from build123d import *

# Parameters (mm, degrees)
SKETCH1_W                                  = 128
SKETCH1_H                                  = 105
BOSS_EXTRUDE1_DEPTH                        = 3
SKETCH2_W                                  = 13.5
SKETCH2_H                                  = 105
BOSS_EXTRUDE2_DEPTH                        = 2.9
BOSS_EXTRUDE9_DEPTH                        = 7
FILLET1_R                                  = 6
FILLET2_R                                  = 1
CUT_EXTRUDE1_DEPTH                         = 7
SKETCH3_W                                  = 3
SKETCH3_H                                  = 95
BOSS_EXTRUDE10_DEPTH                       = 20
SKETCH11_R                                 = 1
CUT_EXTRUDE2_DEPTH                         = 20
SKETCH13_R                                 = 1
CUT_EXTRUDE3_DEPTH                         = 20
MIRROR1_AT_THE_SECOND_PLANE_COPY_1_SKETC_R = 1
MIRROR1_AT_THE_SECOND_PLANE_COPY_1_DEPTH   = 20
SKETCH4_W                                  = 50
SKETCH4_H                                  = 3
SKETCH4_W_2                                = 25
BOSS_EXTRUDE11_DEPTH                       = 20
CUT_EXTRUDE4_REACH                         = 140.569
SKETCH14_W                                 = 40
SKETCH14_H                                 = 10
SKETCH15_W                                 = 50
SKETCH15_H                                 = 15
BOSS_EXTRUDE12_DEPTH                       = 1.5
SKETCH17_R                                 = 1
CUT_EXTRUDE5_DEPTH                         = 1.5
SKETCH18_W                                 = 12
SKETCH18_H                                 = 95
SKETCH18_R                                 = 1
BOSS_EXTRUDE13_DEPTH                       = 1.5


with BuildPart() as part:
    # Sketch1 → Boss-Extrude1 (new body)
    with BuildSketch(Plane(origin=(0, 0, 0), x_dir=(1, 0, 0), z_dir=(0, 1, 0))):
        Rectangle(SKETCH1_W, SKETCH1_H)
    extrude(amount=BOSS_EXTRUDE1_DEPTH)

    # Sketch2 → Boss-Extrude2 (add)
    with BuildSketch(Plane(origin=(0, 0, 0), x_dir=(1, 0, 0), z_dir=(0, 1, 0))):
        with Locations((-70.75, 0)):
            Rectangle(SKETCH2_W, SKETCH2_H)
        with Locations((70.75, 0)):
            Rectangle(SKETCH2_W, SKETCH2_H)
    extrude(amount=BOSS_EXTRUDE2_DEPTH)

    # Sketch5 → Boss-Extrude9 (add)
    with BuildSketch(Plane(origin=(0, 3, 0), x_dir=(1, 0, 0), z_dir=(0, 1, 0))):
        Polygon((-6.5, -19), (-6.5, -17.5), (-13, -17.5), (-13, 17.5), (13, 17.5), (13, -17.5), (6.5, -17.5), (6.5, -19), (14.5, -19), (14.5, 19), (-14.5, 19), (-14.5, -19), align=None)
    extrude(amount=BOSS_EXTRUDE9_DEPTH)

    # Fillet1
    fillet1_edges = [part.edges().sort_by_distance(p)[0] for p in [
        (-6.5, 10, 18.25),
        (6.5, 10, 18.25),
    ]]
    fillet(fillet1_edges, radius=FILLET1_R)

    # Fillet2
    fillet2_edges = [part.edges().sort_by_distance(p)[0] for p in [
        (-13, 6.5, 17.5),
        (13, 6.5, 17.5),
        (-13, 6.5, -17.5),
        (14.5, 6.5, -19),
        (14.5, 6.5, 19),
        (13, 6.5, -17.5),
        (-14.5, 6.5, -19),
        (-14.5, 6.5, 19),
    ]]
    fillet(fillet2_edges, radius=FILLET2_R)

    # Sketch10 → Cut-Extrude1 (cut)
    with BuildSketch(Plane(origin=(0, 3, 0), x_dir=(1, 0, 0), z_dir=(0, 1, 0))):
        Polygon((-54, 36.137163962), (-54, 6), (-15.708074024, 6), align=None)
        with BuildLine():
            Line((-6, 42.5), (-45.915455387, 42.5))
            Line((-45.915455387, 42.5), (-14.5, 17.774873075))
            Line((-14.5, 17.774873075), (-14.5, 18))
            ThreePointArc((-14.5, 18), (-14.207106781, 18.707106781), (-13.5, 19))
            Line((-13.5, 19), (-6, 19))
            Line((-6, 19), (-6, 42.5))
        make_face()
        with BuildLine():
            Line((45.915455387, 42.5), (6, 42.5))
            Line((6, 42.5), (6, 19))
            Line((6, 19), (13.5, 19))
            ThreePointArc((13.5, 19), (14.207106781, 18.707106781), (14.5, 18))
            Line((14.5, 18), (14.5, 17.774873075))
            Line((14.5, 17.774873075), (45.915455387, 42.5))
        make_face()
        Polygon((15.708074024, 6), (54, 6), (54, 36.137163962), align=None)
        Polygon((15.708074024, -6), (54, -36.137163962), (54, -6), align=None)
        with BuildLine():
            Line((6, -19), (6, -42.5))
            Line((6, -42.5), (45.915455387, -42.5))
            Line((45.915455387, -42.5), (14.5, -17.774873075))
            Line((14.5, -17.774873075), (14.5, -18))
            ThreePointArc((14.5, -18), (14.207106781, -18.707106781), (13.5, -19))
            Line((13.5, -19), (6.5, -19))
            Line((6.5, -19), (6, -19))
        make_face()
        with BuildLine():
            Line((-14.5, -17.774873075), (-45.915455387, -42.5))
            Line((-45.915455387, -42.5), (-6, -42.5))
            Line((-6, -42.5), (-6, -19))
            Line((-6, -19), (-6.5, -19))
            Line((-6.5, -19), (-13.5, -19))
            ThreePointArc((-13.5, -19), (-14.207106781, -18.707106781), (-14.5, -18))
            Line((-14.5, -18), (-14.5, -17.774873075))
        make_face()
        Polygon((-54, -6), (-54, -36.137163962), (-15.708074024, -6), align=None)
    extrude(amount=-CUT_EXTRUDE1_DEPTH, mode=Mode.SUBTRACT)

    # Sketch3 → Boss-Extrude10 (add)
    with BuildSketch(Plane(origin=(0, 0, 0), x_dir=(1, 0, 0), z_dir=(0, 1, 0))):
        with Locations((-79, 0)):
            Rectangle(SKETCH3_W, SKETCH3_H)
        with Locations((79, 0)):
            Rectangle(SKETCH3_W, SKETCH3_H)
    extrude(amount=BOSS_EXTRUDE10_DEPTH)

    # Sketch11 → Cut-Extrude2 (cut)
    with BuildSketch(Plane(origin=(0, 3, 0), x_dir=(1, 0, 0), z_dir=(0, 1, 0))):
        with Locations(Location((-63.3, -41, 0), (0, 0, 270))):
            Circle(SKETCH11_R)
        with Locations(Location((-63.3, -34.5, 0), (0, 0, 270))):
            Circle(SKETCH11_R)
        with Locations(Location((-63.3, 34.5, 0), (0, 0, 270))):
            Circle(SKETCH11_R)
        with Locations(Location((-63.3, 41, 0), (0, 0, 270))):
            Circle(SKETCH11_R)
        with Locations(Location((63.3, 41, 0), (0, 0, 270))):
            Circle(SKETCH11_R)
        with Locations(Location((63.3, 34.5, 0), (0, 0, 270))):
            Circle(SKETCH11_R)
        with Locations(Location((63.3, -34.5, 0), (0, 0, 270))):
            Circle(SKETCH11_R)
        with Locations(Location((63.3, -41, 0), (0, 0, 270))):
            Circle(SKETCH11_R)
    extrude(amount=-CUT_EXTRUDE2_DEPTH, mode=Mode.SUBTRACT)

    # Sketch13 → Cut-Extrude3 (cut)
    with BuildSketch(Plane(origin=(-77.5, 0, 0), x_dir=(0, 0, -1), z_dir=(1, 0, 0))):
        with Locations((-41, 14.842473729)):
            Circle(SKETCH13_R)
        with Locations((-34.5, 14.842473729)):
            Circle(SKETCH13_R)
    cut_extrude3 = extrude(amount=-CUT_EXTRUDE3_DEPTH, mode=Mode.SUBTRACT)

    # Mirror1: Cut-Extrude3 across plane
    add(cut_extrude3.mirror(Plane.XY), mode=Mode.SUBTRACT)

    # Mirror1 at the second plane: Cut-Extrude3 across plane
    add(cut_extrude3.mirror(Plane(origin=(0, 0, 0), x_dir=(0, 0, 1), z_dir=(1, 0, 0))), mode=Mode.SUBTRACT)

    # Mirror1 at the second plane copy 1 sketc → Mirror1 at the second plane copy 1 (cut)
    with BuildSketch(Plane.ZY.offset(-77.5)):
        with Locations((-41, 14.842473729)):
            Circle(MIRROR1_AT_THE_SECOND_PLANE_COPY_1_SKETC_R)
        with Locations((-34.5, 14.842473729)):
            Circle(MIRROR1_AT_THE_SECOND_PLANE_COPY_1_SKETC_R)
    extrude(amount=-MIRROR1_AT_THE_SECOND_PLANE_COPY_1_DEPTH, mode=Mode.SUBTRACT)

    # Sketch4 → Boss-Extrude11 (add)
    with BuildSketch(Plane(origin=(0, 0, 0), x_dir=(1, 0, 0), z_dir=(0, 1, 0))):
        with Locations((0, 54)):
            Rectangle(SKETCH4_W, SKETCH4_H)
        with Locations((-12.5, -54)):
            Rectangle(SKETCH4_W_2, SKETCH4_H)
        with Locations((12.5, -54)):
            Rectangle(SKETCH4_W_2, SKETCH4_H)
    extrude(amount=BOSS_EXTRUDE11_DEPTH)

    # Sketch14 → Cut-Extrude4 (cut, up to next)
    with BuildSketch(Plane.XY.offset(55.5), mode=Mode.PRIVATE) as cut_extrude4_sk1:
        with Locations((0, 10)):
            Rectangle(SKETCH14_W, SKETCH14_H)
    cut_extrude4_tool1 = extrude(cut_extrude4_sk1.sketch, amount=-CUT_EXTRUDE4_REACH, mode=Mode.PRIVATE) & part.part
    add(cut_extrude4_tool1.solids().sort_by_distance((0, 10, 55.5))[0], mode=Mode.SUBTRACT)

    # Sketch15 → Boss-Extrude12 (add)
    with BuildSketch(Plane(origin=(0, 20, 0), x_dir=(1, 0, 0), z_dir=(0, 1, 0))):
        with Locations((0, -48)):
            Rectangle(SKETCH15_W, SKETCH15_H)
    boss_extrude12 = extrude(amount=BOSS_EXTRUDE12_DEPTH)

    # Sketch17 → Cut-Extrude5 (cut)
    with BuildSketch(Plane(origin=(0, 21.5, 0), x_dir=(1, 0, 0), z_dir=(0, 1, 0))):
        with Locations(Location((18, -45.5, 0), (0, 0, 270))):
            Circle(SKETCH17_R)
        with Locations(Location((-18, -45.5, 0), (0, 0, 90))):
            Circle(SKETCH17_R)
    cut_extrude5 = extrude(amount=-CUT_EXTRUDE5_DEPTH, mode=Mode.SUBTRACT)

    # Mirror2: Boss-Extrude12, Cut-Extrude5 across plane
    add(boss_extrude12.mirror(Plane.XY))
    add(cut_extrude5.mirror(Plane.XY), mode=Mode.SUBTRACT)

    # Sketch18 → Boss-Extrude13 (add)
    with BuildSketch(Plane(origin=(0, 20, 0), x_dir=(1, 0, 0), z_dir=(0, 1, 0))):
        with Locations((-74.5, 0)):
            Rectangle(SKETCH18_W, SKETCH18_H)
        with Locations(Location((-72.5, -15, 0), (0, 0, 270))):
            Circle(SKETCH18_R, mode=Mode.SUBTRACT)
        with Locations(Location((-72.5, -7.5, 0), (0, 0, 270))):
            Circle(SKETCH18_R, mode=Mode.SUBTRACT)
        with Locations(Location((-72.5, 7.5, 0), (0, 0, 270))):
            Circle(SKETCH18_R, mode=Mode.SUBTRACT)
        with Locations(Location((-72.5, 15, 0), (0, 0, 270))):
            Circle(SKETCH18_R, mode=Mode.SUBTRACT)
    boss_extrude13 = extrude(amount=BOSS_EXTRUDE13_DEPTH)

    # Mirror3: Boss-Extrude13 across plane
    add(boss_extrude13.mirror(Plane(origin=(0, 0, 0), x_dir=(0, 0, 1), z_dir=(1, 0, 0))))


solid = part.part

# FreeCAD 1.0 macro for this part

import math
import FreeCAD as App
import Part
import Sketcher
Q = App.Units.Quantity


def edges_at(feature, points):
    """Names of the edges that pass closest to the given points."""
    edges = feature.Shape.Edges
    near = lambda p: min(range(len(edges)), key=lambda i: edges[i].distToShape(Part.Vertex(*p))[0])
    return sorted({f"Edge{near(p) + 1}" for p in points})


def add_polygon(sketch, points):
    """Adds a closed chain of lines whose ends are joined by coincident constraints."""
    first, n = sketch.GeometryCount, len(points)
    for a, b in zip(points, points[1:] + points[:1]):
        sketch.addGeometry(Part.LineSegment(App.Vector(*a, 0), App.Vector(*b, 0)), False)
    for i in range(n):
        sketch.addConstraint(Sketcher.Constraint("Coincident", first + i, 2, first + (i + 1) % n, 1))

doc = App.newDocument("Part")
body = doc.addObject("PartDesign::Body", "Body")

# Sketch on XZ plane
sketch1 = body.newObject("Sketcher::SketchObject", "Sketch")
sketch1.AttachmentSupport = (doc.getObject("XZ_Plane"), [""])
sketch1.MapMode = "FlatFace"
add_polygon(sketch1, [(-64, -52), (-64, 52), (64, 52), (64, -52)])  # lines 0-3
sketch1.addConstraint([
    Sketcher.Constraint("Vertical", 0),
    Sketcher.Constraint("Horizontal", 1),
    Sketcher.Constraint("Vertical", 2),
    Sketcher.Constraint("Horizontal", 3),
    Sketcher.Constraint("Symmetric", 0, 2, 2, 2, -1, 1),
    Sketcher.Constraint("DistanceX", 1, 1, 1, 2, Q("128 mm")),
    Sketcher.Constraint("DistanceY", 0, 1, 0, 2, Q("105 mm")),
])
pad1 = body.newObject("PartDesign::Pad", "Pad")
pad1.Profile = sketch1
pad1.Length = 3
pad1.Reversed = True

# Sketch on XZ plane
sketch2 = body.newObject("Sketcher::SketchObject", "Sketch001")
sketch2.AttachmentSupport = (doc.getObject("XZ_Plane"), [""])
sketch2.MapMode = "FlatFace"
add_polygon(sketch2, [(-78, -52), (-78, 52), (-64, 52), (-64, -52)])  # lines 0-3
add_polygon(sketch2, [(64, -52), (64, 52), (78, 52), (78, -52)])  # lines 4-7
sketch2.addConstraint([
    Sketcher.Constraint("Vertical", 0),
    Sketcher.Constraint("Horizontal", 1),
    Sketcher.Constraint("Vertical", 2),
    Sketcher.Constraint("Horizontal", 3),
    Sketcher.Constraint("Vertical", 4),
    Sketcher.Constraint("Horizontal", 5),
    Sketcher.Constraint("Vertical", 6),
    Sketcher.Constraint("Horizontal", 7),
    Sketcher.Constraint("Symmetric", 2, 2, 4, 2, -1, 1),
    Sketcher.Constraint("Symmetric", 0, 2, 6, 2, -1, 1),
    Sketcher.Constraint("Horizontal", 1, 2, 4, 2),
    Sketcher.Constraint("DistanceY", 0, 1, 0, 2, Q("105 mm")),
    Sketcher.Constraint("DistanceX", 1, 1, 1, 2, Q("13.5 mm")),
    Sketcher.Constraint("DistanceX", 1, 2, -1, 1, Q("64 mm")),
])
pad2 = body.newObject("PartDesign::Pad", "Pad001")
pad2.Profile = sketch2
pad2.Length = 2.9
pad2.Reversed = True

# Sketch on XZ plane
sketch3 = body.newObject("Sketcher::SketchObject", "Sketch002")
sketch3.AttachmentSupport = (doc.getObject("XZ_Plane"), [""])
sketch3.MapMode = "FlatFace"
sketch3.AttachmentOffset = App.Placement(App.Vector(0, 0, -3), App.Rotation())
add_polygon(sketch3, [(-6.5, 19), (-6.5, 17.5), (-13, 17.5), (-13, -17.5), (13, -17.5), (13, 17.5), (6.5, 17.5), (6.5, 19), (14.5, 19), (14.5, -19), (-14.5, -19), (-14.5, 19)])  # lines 0-11
sketch3.addConstraint([
    Sketcher.Constraint("Vertical", 0),
    Sketcher.Constraint("Horizontal", 1),
    Sketcher.Constraint("Vertical", 2),
    Sketcher.Constraint("Horizontal", 3),
    Sketcher.Constraint("Vertical", 4),
    Sketcher.Constraint("Horizontal", 5),
    Sketcher.Constraint("Vertical", 6),
    Sketcher.Constraint("Horizontal", 7),
    Sketcher.Constraint("Vertical", 8),
    Sketcher.Constraint("Horizontal", 9),
    Sketcher.Constraint("Vertical", 10),
    Sketcher.Constraint("Horizontal", 11),
    Sketcher.Constraint("Symmetric", 1, 2, 3, 2, -1, 1),
    Sketcher.Constraint("Symmetric", 7, 2, 9, 2, -1, 1),
    Sketcher.Constraint("Symmetric", 0, 2, 5, 2, -2),
    Sketcher.Constraint("Horizontal", 7, 2, 10, 2),
    Sketcher.Constraint("DistanceX", 3, 1, 3, 2, Q("26 mm")),
    Sketcher.Constraint("DistanceX", 7, 1, 7, 2, Q("8 mm")),
    Sketcher.Constraint("DistanceX", 9, 2, 9, 1, Q("29 mm")),
    Sketcher.Constraint("DistanceY", 2, 2, 2, 1, Q("35 mm")),
    Sketcher.Constraint("DistanceY", 8, 2, 8, 1, Q("38 mm")),
])
pad3 = body.newObject("PartDesign::Pad", "Pad002")
pad3.Profile = sketch3
pad3.Length = 7
pad3.Reversed = True
doc.recompute()

fillet = body.newObject("PartDesign::Fillet", "Fillet")
fillet.Base = (pad3, edges_at(pad3, [(-6.5, 10, 18.25), (6.5, 10, 18.25)]))
fillet.Radius = 6
doc.recompute()

fillet2 = body.newObject("PartDesign::Fillet", "Fillet001")
fillet2.Base = (fillet, edges_at(fillet, [
    (-13, 6.5, 17.5),
    (13, 6.5, 17.5),
    (-13, 6.5, -17.5),
    (14.5, 6.5, -19),
    (14.5, 6.5, 19),
    (13, 6.5, -17.5),
    (-14.5, 6.5, -19),
    (-14.5, 6.5, 19),
]))
fillet2.Radius = 1

# Sketch on XZ plane
sketch4 = body.newObject("Sketcher::SketchObject", "Sketch003")
sketch4.AttachmentSupport = (doc.getObject("XZ_Plane"), [""])
sketch4.MapMode = "FlatFace"
sketch4.AttachmentOffset = App.Placement(App.Vector(0, 0, -3), App.Rotation())
add_polygon(sketch4, [(-54, -36.14), (-54, -6), (-15.71, -6)])  # lines 0-2
sketch4.addGeometry(Part.LineSegment(App.Vector(-6, -42.5, 0), App.Vector(-45.92, -42.5, 0)), False)  # 3
sketch4.addGeometry(Part.LineSegment(App.Vector(-45.92, -42.5, 0), App.Vector(-14.5, -17.77, 0)), False)  # 4
sketch4.addGeometry(Part.LineSegment(App.Vector(-14.5, -17.77, 0), App.Vector(-14.5, -18, 0)), False)  # 5
sketch4.addGeometry(Part.ArcOfCircle(Part.Circle(App.Vector(-13.5, -18, 0), App.Vector(0, 0, 1), 1), math.radians(-180), math.radians(-90)), False)  # 6
sketch4.addGeometry(Part.LineSegment(App.Vector(-13.5, -19, 0), App.Vector(-6, -19, 0)), False)  # 7
sketch4.addGeometry(Part.LineSegment(App.Vector(-6, -19, 0), App.Vector(-6, -42.5, 0)), False)  # 8
sketch4.addGeometry(Part.LineSegment(App.Vector(45.92, -42.5, 0), App.Vector(6, -42.5, 0)), False)  # 9
sketch4.addGeometry(Part.LineSegment(App.Vector(6, -42.5, 0), App.Vector(6, -19, 0)), False)  # 10
sketch4.addGeometry(Part.LineSegment(App.Vector(6, -19, 0), App.Vector(13.5, -19, 0)), False)  # 11
sketch4.addGeometry(Part.ArcOfCircle(Part.Circle(App.Vector(13.5, -18, 0), App.Vector(0, 0, 1), 1), math.radians(-90), math.radians(0)), False)  # 12
sketch4.addGeometry(Part.LineSegment(App.Vector(14.5, -18, 0), App.Vector(14.5, -17.77, 0)), False)  # 13
sketch4.addGeometry(Part.LineSegment(App.Vector(14.5, -17.77, 0), App.Vector(45.92, -42.5, 0)), False)  # 14
add_polygon(sketch4, [(15.71, -6), (54, -6), (54, -36.14)])  # lines 15-17
add_polygon(sketch4, [(15.71, 6), (54, 36.14), (54, 6)])  # lines 18-20
sketch4.addGeometry(Part.LineSegment(App.Vector(6, 19, 0), App.Vector(6, 42.5, 0)), False)  # 21
sketch4.addGeometry(Part.LineSegment(App.Vector(6, 42.5, 0), App.Vector(45.92, 42.5, 0)), False)  # 22
sketch4.addGeometry(Part.LineSegment(App.Vector(45.92, 42.5, 0), App.Vector(14.5, 17.77, 0)), False)  # 23
sketch4.addGeometry(Part.LineSegment(App.Vector(14.5, 17.77, 0), App.Vector(14.5, 18, 0)), False)  # 24
sketch4.addGeometry(Part.ArcOfCircle(Part.Circle(App.Vector(13.5, 18, 0), App.Vector(0, 0, 1), 1), math.radians(0), math.radians(90)), False)  # 25
sketch4.addGeometry(Part.LineSegment(App.Vector(13.5, 19, 0), App.Vector(6, 19, 0)), False)  # 26
sketch4.addGeometry(Part.LineSegment(App.Vector(-14.5, 17.77, 0), App.Vector(-45.92, 42.5, 0)), False)  # 27
sketch4.addGeometry(Part.LineSegment(App.Vector(-45.92, 42.5, 0), App.Vector(-6, 42.5, 0)), False)  # 28
sketch4.addGeometry(Part.LineSegment(App.Vector(-6, 42.5, 0), App.Vector(-6, 19, 0)), False)  # 29
sketch4.addGeometry(Part.LineSegment(App.Vector(-6, 19, 0), App.Vector(-13.5, 19, 0)), False)  # 30
sketch4.addGeometry(Part.ArcOfCircle(Part.Circle(App.Vector(-13.5, 18, 0), App.Vector(0, 0, 1), 1), math.radians(90), math.radians(180)), False)  # 31
sketch4.addGeometry(Part.LineSegment(App.Vector(-14.5, 18, 0), App.Vector(-14.5, 17.77, 0)), False)  # 32
add_polygon(sketch4, [(-54, 6), (-54, 36.14), (-15.71, 6)])  # lines 33-35
sketch4.addConstraint([
    Sketcher.Constraint("Coincident", 3, 2, 4, 1),
    Sketcher.Constraint("Coincident", 4, 2, 5, 1),
    Sketcher.Constraint("Tangent", 5, 2, 6, 1),
    Sketcher.Constraint("Tangent", 6, 2, 7, 1),
    Sketcher.Constraint("Coincident", 7, 2, 8, 1),
    Sketcher.Constraint("Coincident", 8, 2, 3, 1),
    Sketcher.Constraint("Coincident", 9, 2, 10, 1),
    Sketcher.Constraint("Coincident", 10, 2, 11, 1),
    Sketcher.Constraint("Tangent", 11, 2, 12, 1),
    Sketcher.Constraint("Tangent", 12, 2, 13, 1),
    Sketcher.Constraint("Coincident", 13, 2, 14, 1),
    Sketcher.Constraint("Coincident", 14, 2, 9, 1),
    Sketcher.Constraint("Coincident", 21, 2, 22, 1),
    Sketcher.Constraint("Coincident", 22, 2, 23, 1),
    Sketcher.Constraint("Coincident", 23, 2, 24, 1),
    Sketcher.Constraint("Tangent", 24, 2, 25, 1),
    Sketcher.Constraint("Tangent", 25, 2, 26, 1),
    Sketcher.Constraint("Coincident", 26, 2, 21, 1),
    Sketcher.Constraint("Coincident", 27, 2, 28, 1),
    Sketcher.Constraint("Coincident", 28, 2, 29, 1),
    Sketcher.Constraint("Coincident", 29, 2, 30, 1),
    Sketcher.Constraint("Tangent", 30, 2, 31, 1),
    Sketcher.Constraint("Tangent", 31, 2, 32, 1),
    Sketcher.Constraint("Coincident", 32, 2, 27, 1),
    Sketcher.Constraint("Vertical", 0),
    Sketcher.Constraint("Horizontal", 1),
    Sketcher.Constraint("Horizontal", 3),
    Sketcher.Constraint("Vertical", 5),
    Sketcher.Constraint("Horizontal", 7),
    Sketcher.Constraint("Vertical", 8),
    Sketcher.Constraint("Horizontal", 9),
    Sketcher.Constraint("Vertical", 10),
    Sketcher.Constraint("Horizontal", 11),
    Sketcher.Constraint("Vertical", 13),
    Sketcher.Constraint("Horizontal", 15),
    Sketcher.Constraint("Vertical", 16),
    Sketcher.Constraint("Vertical", 19),
    Sketcher.Constraint("Horizontal", 20),
    Sketcher.Constraint("Vertical", 21),
    Sketcher.Constraint("Horizontal", 22),
    Sketcher.Constraint("Vertical", 24),
    Sketcher.Constraint("Horizontal", 26),
    Sketcher.Constraint("Horizontal", 28),
    Sketcher.Constraint("Vertical", 29),
    Sketcher.Constraint("Horizontal", 30),
    Sketcher.Constraint("Vertical", 32),
    Sketcher.Constraint("Vertical", 33),
    Sketcher.Constraint("Horizontal", 35),
    Sketcher.Constraint("Equal", 6, 12),
    Sketcher.Constraint("Equal", 12, 25),
    Sketcher.Constraint("Equal", 25, 31),
    Sketcher.Constraint("Symmetric", 6, 3, 25, 3, -1, 1),
    Sketcher.Constraint("Symmetric", 12, 3, 31, 3, -1, 1),
    Sketcher.Constraint("Symmetric", 2, 2, 18, 2, -1, 1),
    Sketcher.Constraint("Symmetric", 1, 2, 20, 2, -1, 1),
    Sketcher.Constraint("Symmetric", 8, 2, 21, 2, -1, 1),
    Sketcher.Constraint("Symmetric", 14, 2, 27, 2, -1, 1),
    Sketcher.Constraint("Symmetric", 16, 2, 33, 2, -1, 1),
    Sketcher.Constraint("Symmetric", 17, 2, 34, 2, -1, 1),
    Sketcher.Constraint("Symmetric", 6, 3, 12, 3, -2),
    Sketcher.Constraint("Symmetric", 8, 2, 9, 2, -2),
    Sketcher.Constraint("Symmetric", 0, 2, 15, 2, -2),
    Sketcher.Constraint("Parallel", 2, 4),
    Sketcher.Constraint("Parallel", 14, 17),
    Sketcher.Constraint("Parallel", 18, 23),
    Sketcher.Constraint("Parallel", 17, 27),
    Sketcher.Constraint("Horizontal", 4, 2, 13, 2),
    Sketcher.Constraint("Horizontal", 2, 2, 16, 2),
    Sketcher.Constraint("Horizontal", 23, 2, 32, 2),
    Sketcher.Constraint("Vertical", 17, 2, 20, 2),
    Sketcher.Constraint("Vertical", 8, 2, 28, 2),
    Sketcher.Constraint("Radius", 6, Q("1 mm")),
    Sketcher.Constraint("DistanceX", 7, 1, 7, 2, Q("7.5 mm")),
    Sketcher.Constraint("DistanceY", 8, 2, 8, 1, Q("23.5 mm")),
    Sketcher.Constraint("DistanceY", 6, 3, -1, 1, Q("18 mm")),
    Sketcher.Constraint("DistanceX", 0, 2, -1, 1, Q("54 mm")),
    Sketcher.Constraint("DistanceY", 0, 2, -1, 1, Q("6 mm")),
    Sketcher.Constraint("DistanceX", 7, 2, -1, 1, Q("6 mm")),
    Sketcher.Constraint("Distance", 2, Q("48.729049 mm")),
    Sketcher.Constraint("Distance", 4, Q("39.978278 mm")),
    Sketcher.Constraint("DistanceX", 1, 1, 1, 2, Q("38.291926 mm")),
])
pocket1 = body.newObject("PartDesign::Pocket", "Pocket")
pocket1.Profile = sketch4
pocket1.Length = 7
pocket1.Reversed = True

# Sketch on XZ plane
sketch5 = body.newObject("Sketcher::SketchObject", "Sketch004")
sketch5.AttachmentSupport = (doc.getObject("XZ_Plane"), [""])
sketch5.MapMode = "FlatFace"
add_polygon(sketch5, [(-80.5, -47.5), (-80.5, 47.5), (-77.5, 47.5), (-77.5, -47.5)])  # lines 0-3
add_polygon(sketch5, [(77.5, -47.5), (77.5, 47.5), (80.5, 47.5), (80.5, -47.5)])  # lines 4-7
sketch5.addConstraint([
    Sketcher.Constraint("Vertical", 0),
    Sketcher.Constraint("Horizontal", 1),
    Sketcher.Constraint("Vertical", 2),
    Sketcher.Constraint("Horizontal", 3),
    Sketcher.Constraint("Vertical", 4),
    Sketcher.Constraint("Horizontal", 5),
    Sketcher.Constraint("Vertical", 6),
    Sketcher.Constraint("Horizontal", 7),
    Sketcher.Constraint("Symmetric", 2, 2, 4, 2, -1, 1),
    Sketcher.Constraint("Symmetric", 0, 2, 6, 2, -1, 1),
    Sketcher.Constraint("Horizontal", 1, 2, 4, 2),
    Sketcher.Constraint("DistanceX", 1, 1, 1, 2, Q("3 mm")),
    Sketcher.Constraint("DistanceY", 0, 1, 0, 2, Q("95 mm")),
    Sketcher.Constraint("DistanceX", 1, 2, 4, 2, Q("155 mm")),
])
pad4 = body.newObject("PartDesign::Pad", "Pad003")
pad4.Profile = sketch5
pad4.Length = 20
pad4.Reversed = True

# Sketch on XZ plane
sketch6 = body.newObject("Sketcher::SketchObject", "Sketch005")
sketch6.AttachmentSupport = (doc.getObject("XZ_Plane"), [""])
sketch6.MapMode = "FlatFace"
sketch6.AttachmentOffset = App.Placement(App.Vector(0, 0, -3), App.Rotation())
sketch6.addGeometry([
    Part.Circle(App.Vector(-63.3, 41, 0), App.Vector(0, 0, 1), 1),  # 0
    Part.Circle(App.Vector(-63.3, 34.5, 0), App.Vector(0, 0, 1), 1),  # 1
    Part.Circle(App.Vector(-63.3, -34.5, 0), App.Vector(0, 0, 1), 1),  # 2
    Part.Circle(App.Vector(-63.3, -41, 0), App.Vector(0, 0, 1), 1),  # 3
    Part.Circle(App.Vector(63.3, -41, 0), App.Vector(0, 0, 1), 1),  # 4
    Part.Circle(App.Vector(63.3, -34.5, 0), App.Vector(0, 0, 1), 1),  # 5
    Part.Circle(App.Vector(63.3, 34.5, 0), App.Vector(0, 0, 1), 1),  # 6
    Part.Circle(App.Vector(63.3, 41, 0), App.Vector(0, 0, 1), 1),  # 7
], False)
sketch6.addConstraint([
    Sketcher.Constraint("Equal", 0, 1),
    Sketcher.Constraint("Equal", 1, 2),
    Sketcher.Constraint("Equal", 2, 3),
    Sketcher.Constraint("Equal", 3, 4),
    Sketcher.Constraint("Equal", 4, 5),
    Sketcher.Constraint("Equal", 5, 6),
    Sketcher.Constraint("Equal", 6, 7),
    Sketcher.Constraint("Symmetric", 0, 3, 4, 3, -1, 1),
    Sketcher.Constraint("Symmetric", 1, 3, 5, 3, -1, 1),
    Sketcher.Constraint("Symmetric", 2, 3, 6, 3, -1, 1),
    Sketcher.Constraint("Symmetric", 3, 3, 7, 3, -1, 1),
    Sketcher.Constraint("Symmetric", 3, 3, 4, 3, -2),
    Sketcher.Constraint("Symmetric", 2, 3, 5, 3, -2),
    Sketcher.Constraint("Vertical", 0, 3, 1, 3),
    Sketcher.Constraint("Diameter", 0, Q("2 mm")),
    Sketcher.Constraint("DistanceY", -1, 1, 0, 3, Q("41 mm")),
    Sketcher.Constraint("DistanceY", 2, 3, 1, 3, Q("69 mm")),
    Sketcher.Constraint("DistanceX", 0, 3, -1, 1, Q("63.3 mm")),
])
pocket2 = body.newObject("PartDesign::Pocket", "Pocket001")
pocket2.Profile = sketch6
pocket2.Length = 20
pocket2.Reversed = True

# Sketch on YZ plane
sketch7 = body.newObject("Sketcher::SketchObject", "Sketch006")
sketch7.AttachmentSupport = (doc.getObject("YZ_Plane"), [""])
sketch7.MapMode = "FlatFace"
sketch7.AttachmentOffset = App.Placement(App.Vector(0, 0, -77.5), App.Rotation())
sketch7.addGeometry([
    Part.Circle(App.Vector(14.8, 41, 0), App.Vector(0, 0, 1), 1),
    Part.Circle(App.Vector(14.8, 34.5, 0), App.Vector(0, 0, 1), 1),
], False)
sketch7.addConstraint([
    Sketcher.Constraint("Equal", 0, 1),
    Sketcher.Constraint("Vertical", 0, 3, 1, 3),
    Sketcher.Constraint("Diameter", 0, Q("2 mm")),
    Sketcher.Constraint("DistanceY", -1, 1, 0, 3, Q("41 mm")),
    Sketcher.Constraint("DistanceY", -1, 1, 1, 3, Q("34.5 mm")),
    Sketcher.Constraint("DistanceX", -1, 1, 0, 3, Q("14.842474 mm")),
])
pocket3 = body.newObject("PartDesign::Pocket", "Pocket002")
pocket3.Profile = sketch7
pocket3.Length = 20
doc.recompute()

mirrored = body.newObject("PartDesign::Mirrored", "Mirrored")
mirrored.Originals = [pocket3]
mirrored.MirrorPlane = (doc.getObject("XY_Plane"), [""])
body.Tip = mirrored
doc.recompute()

mirrored2 = body.newObject("PartDesign::Mirrored", "Mirrored001")
mirrored2.Originals = [pocket3]
mirrored2.MirrorPlane = (doc.getObject("YZ_Plane"), [""])
body.Tip = mirrored2

# Sketch on YZ plane
sketch8 = body.newObject("Sketcher::SketchObject", "Sketch007")
sketch8.AttachmentSupport = (doc.getObject("YZ_Plane"), [""])
sketch8.MapMode = "FlatFace"
sketch8.AttachmentOffset = App.Placement(App.Vector(0, 0, 77.5), App.Rotation())
sketch8.addGeometry([
    Part.Circle(App.Vector(14.8, -41, 0), App.Vector(0, 0, 1), 1),
    Part.Circle(App.Vector(14.8, -34.5, 0), App.Vector(0, 0, 1), 1),
], False)
sketch8.addConstraint([
    Sketcher.Constraint("Equal", 0, 1),
    Sketcher.Constraint("Vertical", 0, 3, 1, 3),
    Sketcher.Constraint("Diameter", 0, Q("2 mm")),
    Sketcher.Constraint("DistanceY", 0, 3, -1, 1, Q("41 mm")),
    Sketcher.Constraint("DistanceY", 1, 3, -1, 1, Q("34.5 mm")),
    Sketcher.Constraint("DistanceX", -1, 1, 0, 3, Q("14.842474 mm")),
])
pocket4 = body.newObject("PartDesign::Pocket", "Pocket003")
pocket4.Profile = sketch8
pocket4.Length = 20
pocket4.Reversed = True

# Sketch on XZ plane
sketch9 = body.newObject("Sketcher::SketchObject", "Sketch008")
sketch9.AttachmentSupport = (doc.getObject("XZ_Plane"), [""])
sketch9.MapMode = "FlatFace"
add_polygon(sketch9, [(-25, -55.5), (-25, -52.5), (25, -52.5), (25, -55.5)])  # lines 0-3
add_polygon(sketch9, [(-25, 52.5), (-25, 55.5), (25, 55.5), (25, 52.5)])  # lines 4-7
sketch9.addConstraint([
    Sketcher.Constraint("Vertical", 0),
    Sketcher.Constraint("Horizontal", 1),
    Sketcher.Constraint("Vertical", 2),
    Sketcher.Constraint("Horizontal", 3),
    Sketcher.Constraint("Vertical", 4),
    Sketcher.Constraint("Horizontal", 5),
    Sketcher.Constraint("Vertical", 6),
    Sketcher.Constraint("Horizontal", 7),
    Sketcher.Constraint("Symmetric", 2, 2, 4, 2, -1, 1),
    Sketcher.Constraint("Symmetric", 0, 2, 6, 2, -1, 1),
    Sketcher.Constraint("Vertical", 3, 2, 4, 2),
    Sketcher.Constraint("DistanceX", 1, 1, 1, 2, Q("50 mm")),
    Sketcher.Constraint("DistanceY", 0, 1, 0, 2, Q("3 mm")),
    Sketcher.Constraint("DistanceY", 0, 2, 4, 2, Q("108 mm")),
])
pad5 = body.newObject("PartDesign::Pad", "Pad004")
pad5.Profile = sketch9
pad5.Length = 20
pad5.Reversed = True

# Sketch on XY plane
sketch10 = body.newObject("Sketcher::SketchObject", "Sketch009")
sketch10.AttachmentSupport = (doc.getObject("XY_Plane"), [""])
sketch10.MapMode = "FlatFace"
sketch10.AttachmentOffset = App.Placement(App.Vector(0, 0, 55.5), App.Rotation())
add_polygon(sketch10, [(-20, 15), (-20, 5), (20, 5), (20, 15)])  # lines 0-3
sketch10.addConstraint([
    Sketcher.Constraint("Vertical", 0),
    Sketcher.Constraint("Horizontal", 1),
    Sketcher.Constraint("Vertical", 2),
    Sketcher.Constraint("Horizontal", 3),
    Sketcher.Constraint("DistanceX", 1, 1, 1, 2, Q("40 mm")),
    Sketcher.Constraint("DistanceY", 0, 2, 0, 1, Q("10 mm")),
    Sketcher.Constraint("DistanceX", 0, 2, -1, 1, Q("20 mm")),
    Sketcher.Constraint("DistanceY", -1, 1, 0, 2, Q("5 mm")),
])
pocket5 = body.newObject("PartDesign::Pocket", "Pocket004")
pocket5.Profile = sketch10
pocket5.Type = "UpToFirst"

# Sketch on XZ plane
sketch11 = body.newObject("Sketcher::SketchObject", "Sketch010")
sketch11.AttachmentSupport = (doc.getObject("XZ_Plane"), [""])
sketch11.MapMode = "FlatFace"
sketch11.AttachmentOffset = App.Placement(App.Vector(0, 0, -20), App.Rotation())
add_polygon(sketch11, [(-25, 40), (-25, 56), (25, 56), (25, 40)])  # lines 0-3
sketch11.addConstraint([
    Sketcher.Constraint("Vertical", 0),
    Sketcher.Constraint("Horizontal", 1),
    Sketcher.Constraint("Vertical", 2),
    Sketcher.Constraint("Horizontal", 3),
    Sketcher.Constraint("DistanceX", 1, 1, 1, 2, Q("50 mm")),
    Sketcher.Constraint("DistanceY", 0, 1, 0, 2, Q("15 mm")),
    Sketcher.Constraint("DistanceX", 0, 2, -1, 1, Q("25 mm")),
    Sketcher.Constraint("DistanceY", -1, 1, 0, 2, Q("55.5 mm")),
])
pad6 = body.newObject("PartDesign::Pad", "Pad005")
pad6.Profile = sketch11
pad6.Length = 1.5
pad6.Reversed = True

# Sketch on XZ plane
sketch12 = body.newObject("Sketcher::SketchObject", "Sketch011")
sketch12.AttachmentSupport = (doc.getObject("XZ_Plane"), [""])
sketch12.MapMode = "FlatFace"
sketch12.AttachmentOffset = App.Placement(App.Vector(0, 0, -21.5), App.Rotation())
sketch12.addGeometry([
    Part.Circle(App.Vector(18, 45.5, 0), App.Vector(0, 0, 1), 1),
    Part.Circle(App.Vector(-18, 45.5, 0), App.Vector(0, 0, 1), 1),
], False)
sketch12.addConstraint([
    Sketcher.Constraint("Equal", 0, 1),
    Sketcher.Constraint("Symmetric", 0, 3, 1, 3, -2),
    Sketcher.Constraint("Diameter", 0, Q("2 mm")),
    Sketcher.Constraint("DistanceX", -1, 1, 0, 3, Q("18 mm")),
    Sketcher.Constraint("DistanceY", -1, 1, 0, 3, Q("45.5 mm")),
])
pocket6 = body.newObject("PartDesign::Pocket", "Pocket005")
pocket6.Profile = sketch12
pocket6.Length = 1.5
pocket6.Reversed = True
doc.recompute()

mirrored3 = body.newObject("PartDesign::Mirrored", "Mirrored002")
mirrored3.Originals = [pad6, pocket6]
mirrored3.MirrorPlane = (doc.getObject("XY_Plane"), [""])
body.Tip = mirrored3

# Sketch on XZ plane
sketch13 = body.newObject("Sketcher::SketchObject", "Sketch012")
sketch13.AttachmentSupport = (doc.getObject("XZ_Plane"), [""])
sketch13.MapMode = "FlatFace"
sketch13.AttachmentOffset = App.Placement(App.Vector(0, 0, -20), App.Rotation())
add_polygon(sketch13, [(-80.5, -47.5), (-80.5, 47.5), (-68.5, 47.5), (-68.5, -47.5)])  # lines 0-3
sketch13.addGeometry(Part.Circle(App.Vector(-72.5, 15, 0), App.Vector(0, 0, 1), 1), False)  # 4
sketch13.addGeometry(Part.Circle(App.Vector(-72.5, 7.5, 0), App.Vector(0, 0, 1), 1), False)  # 5
sketch13.addGeometry(Part.Circle(App.Vector(-72.5, -7.5, 0), App.Vector(0, 0, 1), 1), False)  # 6
sketch13.addGeometry(Part.Circle(App.Vector(-72.5, -15, 0), App.Vector(0, 0, 1), 1), False)  # 7
sketch13.addConstraint([
    Sketcher.Constraint("Vertical", 0),
    Sketcher.Constraint("Horizontal", 1),
    Sketcher.Constraint("Vertical", 2),
    Sketcher.Constraint("Horizontal", 3),
    Sketcher.Constraint("Equal", 4, 5),
    Sketcher.Constraint("Equal", 5, 6),
    Sketcher.Constraint("Equal", 6, 7),
    Sketcher.Constraint("Symmetric", 5, 3, 6, 3, -1),
    Sketcher.Constraint("Symmetric", 4, 3, 7, 3, -1),
    Sketcher.Constraint("Vertical", 4, 3, 5, 3),
    Sketcher.Constraint("Diameter", 4, Q("2 mm")),
    Sketcher.Constraint("DistanceX", 1, 1, 1, 2, Q("12 mm")),
    Sketcher.Constraint("DistanceY", 0, 1, 0, 2, Q("95 mm")),
    Sketcher.Constraint("DistanceY", -1, 1, 4, 3, Q("15 mm")),
    Sketcher.Constraint("DistanceY", 6, 3, 5, 3, Q("15 mm")),
    Sketcher.Constraint("DistanceX", 0, 2, 4, 3, Q("8 mm")),
    Sketcher.Constraint("DistanceY", 5, 3, 0, 2, Q("40 mm")),
    Sketcher.Constraint("DistanceX", 4, 3, -1, 1, Q("72.5 mm")),
])
pad7 = body.newObject("PartDesign::Pad", "Pad006")
pad7.Profile = sketch13
pad7.Length = 1.5
pad7.Reversed = True
doc.recompute()

mirrored4 = body.newObject("PartDesign::Mirrored", "Mirrored003")
mirrored4.Originals = [pad7]
mirrored4.MirrorPlane = (doc.getObject("YZ_Plane"), [""])
body.Tip = mirrored4

doc.recompute()
